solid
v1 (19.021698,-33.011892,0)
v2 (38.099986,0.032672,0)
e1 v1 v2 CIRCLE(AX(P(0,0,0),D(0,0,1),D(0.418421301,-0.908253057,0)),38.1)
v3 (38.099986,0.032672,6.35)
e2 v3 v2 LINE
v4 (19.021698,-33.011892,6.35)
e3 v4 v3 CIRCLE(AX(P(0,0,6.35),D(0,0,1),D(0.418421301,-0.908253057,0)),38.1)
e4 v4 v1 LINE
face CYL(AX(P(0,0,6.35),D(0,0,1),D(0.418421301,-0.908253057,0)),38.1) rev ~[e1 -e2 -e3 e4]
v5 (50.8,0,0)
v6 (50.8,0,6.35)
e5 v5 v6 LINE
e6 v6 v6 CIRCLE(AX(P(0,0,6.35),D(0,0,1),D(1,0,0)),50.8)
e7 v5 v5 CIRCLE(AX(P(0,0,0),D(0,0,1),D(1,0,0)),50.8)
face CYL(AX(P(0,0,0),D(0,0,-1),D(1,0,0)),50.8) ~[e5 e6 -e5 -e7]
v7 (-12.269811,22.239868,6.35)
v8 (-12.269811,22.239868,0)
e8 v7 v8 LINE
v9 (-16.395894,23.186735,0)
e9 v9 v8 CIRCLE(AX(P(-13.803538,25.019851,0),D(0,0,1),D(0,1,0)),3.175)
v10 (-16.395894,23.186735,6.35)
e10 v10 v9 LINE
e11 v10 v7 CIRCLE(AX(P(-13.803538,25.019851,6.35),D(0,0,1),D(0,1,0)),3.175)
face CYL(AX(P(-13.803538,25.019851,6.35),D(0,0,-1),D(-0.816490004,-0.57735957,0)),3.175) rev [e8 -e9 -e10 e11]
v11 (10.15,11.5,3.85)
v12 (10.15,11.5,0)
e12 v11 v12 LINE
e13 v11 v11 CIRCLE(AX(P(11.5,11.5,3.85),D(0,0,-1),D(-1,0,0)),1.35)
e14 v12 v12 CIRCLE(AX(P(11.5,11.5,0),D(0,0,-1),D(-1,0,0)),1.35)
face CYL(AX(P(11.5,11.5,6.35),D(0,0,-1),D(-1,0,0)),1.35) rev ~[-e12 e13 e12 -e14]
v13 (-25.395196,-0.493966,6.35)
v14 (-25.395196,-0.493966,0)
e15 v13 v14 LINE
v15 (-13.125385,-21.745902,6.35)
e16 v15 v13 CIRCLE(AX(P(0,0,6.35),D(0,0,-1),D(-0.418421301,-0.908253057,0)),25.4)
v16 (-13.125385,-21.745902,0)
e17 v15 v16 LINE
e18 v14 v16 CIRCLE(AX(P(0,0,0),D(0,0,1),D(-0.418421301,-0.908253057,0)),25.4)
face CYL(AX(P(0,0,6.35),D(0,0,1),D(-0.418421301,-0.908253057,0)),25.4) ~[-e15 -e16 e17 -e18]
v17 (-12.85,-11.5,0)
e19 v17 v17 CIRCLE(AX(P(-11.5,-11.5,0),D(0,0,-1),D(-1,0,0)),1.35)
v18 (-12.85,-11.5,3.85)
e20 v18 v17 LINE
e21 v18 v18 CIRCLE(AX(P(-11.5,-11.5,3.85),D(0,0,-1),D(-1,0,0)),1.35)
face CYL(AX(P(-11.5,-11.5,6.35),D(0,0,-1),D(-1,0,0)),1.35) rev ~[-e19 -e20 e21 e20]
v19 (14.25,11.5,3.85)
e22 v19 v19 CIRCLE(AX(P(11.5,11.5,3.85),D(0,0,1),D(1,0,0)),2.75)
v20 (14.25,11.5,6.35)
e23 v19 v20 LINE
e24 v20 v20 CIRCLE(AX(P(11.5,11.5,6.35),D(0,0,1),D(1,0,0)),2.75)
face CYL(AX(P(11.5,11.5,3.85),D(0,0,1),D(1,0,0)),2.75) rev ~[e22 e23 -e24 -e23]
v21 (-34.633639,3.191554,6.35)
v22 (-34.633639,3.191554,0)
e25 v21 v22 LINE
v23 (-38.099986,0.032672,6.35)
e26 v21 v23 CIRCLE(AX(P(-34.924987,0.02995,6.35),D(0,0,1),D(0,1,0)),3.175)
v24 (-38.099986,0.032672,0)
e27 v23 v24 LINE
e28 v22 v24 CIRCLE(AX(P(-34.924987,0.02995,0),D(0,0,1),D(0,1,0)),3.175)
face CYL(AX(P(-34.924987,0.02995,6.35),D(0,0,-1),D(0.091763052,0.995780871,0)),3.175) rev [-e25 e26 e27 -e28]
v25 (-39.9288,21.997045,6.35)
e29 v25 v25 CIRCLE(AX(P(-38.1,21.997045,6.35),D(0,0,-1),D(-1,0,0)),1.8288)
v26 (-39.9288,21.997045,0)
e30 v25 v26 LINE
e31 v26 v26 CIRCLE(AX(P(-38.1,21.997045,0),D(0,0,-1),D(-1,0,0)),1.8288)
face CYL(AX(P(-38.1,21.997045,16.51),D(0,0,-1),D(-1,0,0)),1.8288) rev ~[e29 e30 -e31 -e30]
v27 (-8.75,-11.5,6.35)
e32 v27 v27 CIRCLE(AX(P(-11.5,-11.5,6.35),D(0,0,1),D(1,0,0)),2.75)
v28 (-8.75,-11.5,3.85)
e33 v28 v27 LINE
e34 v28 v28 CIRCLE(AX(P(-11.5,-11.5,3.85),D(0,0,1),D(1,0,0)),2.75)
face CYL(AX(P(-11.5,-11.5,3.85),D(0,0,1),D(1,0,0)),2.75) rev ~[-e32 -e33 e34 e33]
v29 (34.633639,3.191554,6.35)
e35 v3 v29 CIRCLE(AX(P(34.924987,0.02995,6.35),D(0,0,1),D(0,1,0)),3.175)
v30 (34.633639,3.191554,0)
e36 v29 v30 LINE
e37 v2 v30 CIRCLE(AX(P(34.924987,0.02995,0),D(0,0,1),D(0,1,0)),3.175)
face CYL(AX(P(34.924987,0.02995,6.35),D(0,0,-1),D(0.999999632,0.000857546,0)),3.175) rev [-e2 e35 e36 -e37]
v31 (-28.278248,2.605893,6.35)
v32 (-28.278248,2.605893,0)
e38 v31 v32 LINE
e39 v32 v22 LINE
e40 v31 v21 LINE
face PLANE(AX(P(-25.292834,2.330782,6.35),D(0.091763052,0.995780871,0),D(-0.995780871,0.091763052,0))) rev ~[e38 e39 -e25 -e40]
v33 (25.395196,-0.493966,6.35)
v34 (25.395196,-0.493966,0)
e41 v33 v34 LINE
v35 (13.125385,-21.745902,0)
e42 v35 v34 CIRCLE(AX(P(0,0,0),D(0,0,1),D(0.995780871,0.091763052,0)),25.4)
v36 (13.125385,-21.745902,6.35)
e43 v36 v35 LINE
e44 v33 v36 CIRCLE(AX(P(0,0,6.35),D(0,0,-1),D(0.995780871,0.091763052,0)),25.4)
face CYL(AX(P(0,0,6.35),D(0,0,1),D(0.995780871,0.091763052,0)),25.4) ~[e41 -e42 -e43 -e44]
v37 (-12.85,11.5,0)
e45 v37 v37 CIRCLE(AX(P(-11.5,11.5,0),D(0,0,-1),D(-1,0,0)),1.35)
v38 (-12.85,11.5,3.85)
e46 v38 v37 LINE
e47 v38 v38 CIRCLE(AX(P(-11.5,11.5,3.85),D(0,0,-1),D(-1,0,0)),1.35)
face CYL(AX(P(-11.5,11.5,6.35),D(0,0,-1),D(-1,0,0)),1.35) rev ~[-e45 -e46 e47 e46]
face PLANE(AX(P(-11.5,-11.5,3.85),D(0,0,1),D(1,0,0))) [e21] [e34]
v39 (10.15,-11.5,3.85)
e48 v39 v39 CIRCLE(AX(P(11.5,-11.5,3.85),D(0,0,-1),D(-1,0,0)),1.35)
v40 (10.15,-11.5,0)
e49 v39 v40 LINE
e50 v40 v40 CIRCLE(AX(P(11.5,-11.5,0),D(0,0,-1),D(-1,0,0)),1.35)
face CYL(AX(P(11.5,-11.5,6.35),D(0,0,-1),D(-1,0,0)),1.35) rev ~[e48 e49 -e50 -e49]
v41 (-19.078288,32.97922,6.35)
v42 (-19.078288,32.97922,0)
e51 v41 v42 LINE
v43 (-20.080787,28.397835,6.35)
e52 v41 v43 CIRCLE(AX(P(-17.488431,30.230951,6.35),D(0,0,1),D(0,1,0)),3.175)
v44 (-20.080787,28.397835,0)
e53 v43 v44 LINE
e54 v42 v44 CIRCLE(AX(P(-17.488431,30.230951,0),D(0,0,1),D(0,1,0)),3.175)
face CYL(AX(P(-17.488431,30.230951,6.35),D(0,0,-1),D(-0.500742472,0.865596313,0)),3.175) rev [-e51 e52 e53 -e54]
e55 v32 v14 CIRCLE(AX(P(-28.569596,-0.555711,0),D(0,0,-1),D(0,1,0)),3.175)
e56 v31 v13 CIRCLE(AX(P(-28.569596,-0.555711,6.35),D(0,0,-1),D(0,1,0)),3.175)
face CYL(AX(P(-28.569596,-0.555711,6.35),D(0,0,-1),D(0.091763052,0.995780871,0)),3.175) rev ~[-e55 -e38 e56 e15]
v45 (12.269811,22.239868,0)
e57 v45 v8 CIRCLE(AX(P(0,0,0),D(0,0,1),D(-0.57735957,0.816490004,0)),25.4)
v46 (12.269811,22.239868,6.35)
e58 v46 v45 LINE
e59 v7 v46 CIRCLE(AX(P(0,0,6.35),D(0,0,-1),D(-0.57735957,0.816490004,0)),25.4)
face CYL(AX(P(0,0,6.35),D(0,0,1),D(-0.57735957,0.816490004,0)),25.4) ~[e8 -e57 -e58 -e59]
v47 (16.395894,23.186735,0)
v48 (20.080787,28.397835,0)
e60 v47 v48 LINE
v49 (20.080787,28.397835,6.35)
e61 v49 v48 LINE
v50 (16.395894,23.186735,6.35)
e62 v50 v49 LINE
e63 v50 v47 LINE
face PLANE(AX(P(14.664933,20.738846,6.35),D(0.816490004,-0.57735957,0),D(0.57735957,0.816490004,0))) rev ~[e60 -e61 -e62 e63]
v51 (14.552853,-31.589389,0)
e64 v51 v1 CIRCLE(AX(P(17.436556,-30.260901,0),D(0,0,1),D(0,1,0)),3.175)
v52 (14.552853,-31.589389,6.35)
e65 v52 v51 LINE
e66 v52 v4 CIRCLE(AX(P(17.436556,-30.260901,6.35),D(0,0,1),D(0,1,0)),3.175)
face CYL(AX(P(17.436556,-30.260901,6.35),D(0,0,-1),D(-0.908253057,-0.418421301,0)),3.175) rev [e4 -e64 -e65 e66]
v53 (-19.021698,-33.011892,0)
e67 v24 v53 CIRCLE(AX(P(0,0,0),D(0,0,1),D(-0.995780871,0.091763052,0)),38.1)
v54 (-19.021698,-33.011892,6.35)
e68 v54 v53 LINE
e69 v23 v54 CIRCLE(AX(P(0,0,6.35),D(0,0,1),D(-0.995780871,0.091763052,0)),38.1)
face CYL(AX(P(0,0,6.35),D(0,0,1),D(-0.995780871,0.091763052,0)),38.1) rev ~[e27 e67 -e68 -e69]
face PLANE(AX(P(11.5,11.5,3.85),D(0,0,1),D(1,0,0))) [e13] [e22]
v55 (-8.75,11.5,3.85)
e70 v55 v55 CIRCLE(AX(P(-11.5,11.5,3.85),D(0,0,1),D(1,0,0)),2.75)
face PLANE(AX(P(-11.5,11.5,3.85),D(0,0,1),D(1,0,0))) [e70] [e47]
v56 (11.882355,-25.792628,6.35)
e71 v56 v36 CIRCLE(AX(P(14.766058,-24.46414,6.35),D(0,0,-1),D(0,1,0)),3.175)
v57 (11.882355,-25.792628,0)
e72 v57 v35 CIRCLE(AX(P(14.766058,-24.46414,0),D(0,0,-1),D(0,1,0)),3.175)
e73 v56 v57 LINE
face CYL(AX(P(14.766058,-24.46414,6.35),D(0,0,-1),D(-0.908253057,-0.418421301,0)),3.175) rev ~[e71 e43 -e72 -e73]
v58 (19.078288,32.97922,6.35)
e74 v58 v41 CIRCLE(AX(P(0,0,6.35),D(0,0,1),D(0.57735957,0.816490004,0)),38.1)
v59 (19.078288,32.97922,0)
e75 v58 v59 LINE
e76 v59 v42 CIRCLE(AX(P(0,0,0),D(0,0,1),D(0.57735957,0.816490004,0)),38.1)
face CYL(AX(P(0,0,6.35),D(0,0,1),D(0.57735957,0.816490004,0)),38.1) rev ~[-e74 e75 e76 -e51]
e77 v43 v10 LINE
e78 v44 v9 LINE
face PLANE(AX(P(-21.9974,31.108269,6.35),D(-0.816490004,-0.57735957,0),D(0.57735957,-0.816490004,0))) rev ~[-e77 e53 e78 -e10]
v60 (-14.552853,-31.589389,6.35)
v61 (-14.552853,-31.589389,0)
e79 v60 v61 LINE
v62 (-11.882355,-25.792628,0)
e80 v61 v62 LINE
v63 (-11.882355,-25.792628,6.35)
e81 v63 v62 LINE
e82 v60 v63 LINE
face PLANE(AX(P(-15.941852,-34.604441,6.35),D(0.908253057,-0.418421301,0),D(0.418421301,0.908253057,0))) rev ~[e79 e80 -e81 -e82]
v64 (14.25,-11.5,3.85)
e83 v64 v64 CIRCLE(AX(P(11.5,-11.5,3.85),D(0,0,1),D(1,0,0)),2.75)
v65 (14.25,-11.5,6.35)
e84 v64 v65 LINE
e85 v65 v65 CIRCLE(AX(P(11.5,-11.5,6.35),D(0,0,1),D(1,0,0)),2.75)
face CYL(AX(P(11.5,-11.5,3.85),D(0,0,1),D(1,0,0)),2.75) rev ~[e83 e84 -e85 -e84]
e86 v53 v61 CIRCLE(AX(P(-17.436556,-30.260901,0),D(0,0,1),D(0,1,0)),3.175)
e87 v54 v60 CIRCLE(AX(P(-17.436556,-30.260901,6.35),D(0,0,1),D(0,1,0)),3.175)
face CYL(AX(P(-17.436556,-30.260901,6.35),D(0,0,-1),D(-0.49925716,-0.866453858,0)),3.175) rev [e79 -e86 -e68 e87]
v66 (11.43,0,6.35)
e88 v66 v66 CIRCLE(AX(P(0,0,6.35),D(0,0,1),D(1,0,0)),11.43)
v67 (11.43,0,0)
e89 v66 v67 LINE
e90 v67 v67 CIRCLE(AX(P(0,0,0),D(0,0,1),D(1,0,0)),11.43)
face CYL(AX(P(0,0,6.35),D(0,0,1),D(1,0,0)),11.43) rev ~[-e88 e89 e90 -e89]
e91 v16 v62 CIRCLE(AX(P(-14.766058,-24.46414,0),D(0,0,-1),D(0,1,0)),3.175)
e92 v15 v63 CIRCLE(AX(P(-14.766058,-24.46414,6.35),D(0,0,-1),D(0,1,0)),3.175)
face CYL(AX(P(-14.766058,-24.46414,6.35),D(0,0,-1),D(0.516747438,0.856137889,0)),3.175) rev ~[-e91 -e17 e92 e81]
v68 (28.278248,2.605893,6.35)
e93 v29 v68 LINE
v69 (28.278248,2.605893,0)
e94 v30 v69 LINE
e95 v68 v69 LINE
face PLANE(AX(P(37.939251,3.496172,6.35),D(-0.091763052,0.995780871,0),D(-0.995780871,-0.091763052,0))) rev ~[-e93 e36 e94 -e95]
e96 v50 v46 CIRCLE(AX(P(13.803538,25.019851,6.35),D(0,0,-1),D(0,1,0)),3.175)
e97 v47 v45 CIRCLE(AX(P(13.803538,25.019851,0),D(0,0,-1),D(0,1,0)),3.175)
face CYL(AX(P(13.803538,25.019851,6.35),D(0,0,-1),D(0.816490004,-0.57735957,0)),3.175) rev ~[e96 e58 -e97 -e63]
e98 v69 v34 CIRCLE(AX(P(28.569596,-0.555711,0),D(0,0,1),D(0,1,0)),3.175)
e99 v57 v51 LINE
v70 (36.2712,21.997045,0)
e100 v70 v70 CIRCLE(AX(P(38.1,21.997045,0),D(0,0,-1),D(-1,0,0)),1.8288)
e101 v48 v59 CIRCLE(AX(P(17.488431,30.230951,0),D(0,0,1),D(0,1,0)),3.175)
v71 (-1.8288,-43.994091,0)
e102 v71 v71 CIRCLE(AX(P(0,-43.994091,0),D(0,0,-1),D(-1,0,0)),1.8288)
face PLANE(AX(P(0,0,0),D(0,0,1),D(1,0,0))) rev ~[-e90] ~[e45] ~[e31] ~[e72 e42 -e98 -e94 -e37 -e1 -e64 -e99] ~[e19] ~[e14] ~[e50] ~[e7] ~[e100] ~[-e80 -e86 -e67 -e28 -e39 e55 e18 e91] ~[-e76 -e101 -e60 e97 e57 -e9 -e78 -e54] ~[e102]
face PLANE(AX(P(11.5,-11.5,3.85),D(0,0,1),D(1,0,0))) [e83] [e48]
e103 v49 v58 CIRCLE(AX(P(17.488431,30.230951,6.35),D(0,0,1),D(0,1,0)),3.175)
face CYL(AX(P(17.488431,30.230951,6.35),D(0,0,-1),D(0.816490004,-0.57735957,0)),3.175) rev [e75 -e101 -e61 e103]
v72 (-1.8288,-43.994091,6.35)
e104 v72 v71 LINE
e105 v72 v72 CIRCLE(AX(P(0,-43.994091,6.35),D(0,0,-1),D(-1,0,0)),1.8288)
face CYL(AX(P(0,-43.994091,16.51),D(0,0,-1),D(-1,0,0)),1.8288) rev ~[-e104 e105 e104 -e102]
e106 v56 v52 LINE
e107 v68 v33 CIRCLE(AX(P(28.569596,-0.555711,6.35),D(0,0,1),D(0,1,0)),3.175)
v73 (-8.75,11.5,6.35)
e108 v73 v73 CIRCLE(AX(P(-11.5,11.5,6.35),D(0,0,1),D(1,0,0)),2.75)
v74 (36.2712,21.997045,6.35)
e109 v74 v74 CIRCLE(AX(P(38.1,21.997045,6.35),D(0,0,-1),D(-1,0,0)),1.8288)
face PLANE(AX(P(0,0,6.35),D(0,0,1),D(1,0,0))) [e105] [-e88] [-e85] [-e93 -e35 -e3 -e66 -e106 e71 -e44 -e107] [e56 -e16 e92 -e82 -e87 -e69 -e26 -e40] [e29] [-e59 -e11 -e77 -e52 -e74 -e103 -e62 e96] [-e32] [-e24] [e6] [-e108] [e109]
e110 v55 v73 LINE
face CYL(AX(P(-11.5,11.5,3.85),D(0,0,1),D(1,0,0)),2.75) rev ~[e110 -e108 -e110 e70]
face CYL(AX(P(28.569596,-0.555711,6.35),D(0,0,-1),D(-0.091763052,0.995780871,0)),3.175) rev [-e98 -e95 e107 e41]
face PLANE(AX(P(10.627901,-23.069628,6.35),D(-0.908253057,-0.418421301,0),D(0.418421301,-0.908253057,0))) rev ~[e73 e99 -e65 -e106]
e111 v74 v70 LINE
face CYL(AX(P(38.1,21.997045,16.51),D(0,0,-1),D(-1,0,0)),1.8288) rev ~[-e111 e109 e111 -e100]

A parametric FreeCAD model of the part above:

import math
import FreeCAD as App
import Part
import Sketcher

V = App.Vector
Q = App.Units.Quantity


def edges_at(feature, points):
    """Names of the edges that pass closest to the given points."""
    edges = feature.Shape.Edges
    near = lambda p: min(range(len(edges)), key=lambda i: edges[i].distToShape(Part.Vertex(*p))[0])
    return sorted({f"Edge{near(p) + 1}" for p in points})

doc = App.newDocument("Part")
body = doc.addObject("PartDesign::Body", "Body")

# Sketch on XY plane
sketch1 = body.newObject("Sketcher::SketchObject", "Sketch")
sketch1.AttachmentSupport = (doc.getObject("XY_Plane"), [""])
sketch1.MapMode = "FlatFace"
sketch1.addGeometry(Part.Circle(V(0, 0, 0), V(0, 0, 1), 51), False)
sketch1.addConstraint([
    Sketcher.Constraint("Coincident", 0, 3, -1, 1),
    Sketcher.Constraint("Diameter", 0, Q("4 in")),
])
pad1 = body.newObject("PartDesign::Pad", "Pad")
pad1.Profile = sketch1
pad1.Length = Q("0.25 in")

# Sketch on XY plane
sketch2 = body.newObject("Sketcher::SketchObject", "Sketch001")
sketch2.AttachmentSupport = (doc.getObject("XY_Plane"), [""])
sketch2.MapMode = "FlatFace"
sketch2.AttachmentOffset = App.Placement(V(0, 0, 0.25 * 25.4), App.Rotation())
sketch2.addGeometry(Part.Circle(V(0, 0, 0), V(0, 0, 1), 11), False)
sketch2.addConstraint([
    Sketcher.Constraint("Coincident", 0, 3, -1, 1),
    Sketcher.Constraint("Diameter", 0, Q("0.9 in")),
])
pocket1 = body.newObject("PartDesign::Pocket", "Pocket")
pocket1.Profile = sketch2
pocket1.Type = "ThroughAll"

# Sketch on XY plane
sketch3 = body.newObject("Sketcher::SketchObject", "Sketch002")
sketch3.AttachmentSupport = (doc.getObject("XY_Plane"), [""])
sketch3.MapMode = "FlatFace"
sketch3.AttachmentOffset = App.Placement(V(0, 0, 0.25 * 25.4), App.Rotation())
sketch3.addGeometry([
    Part.Circle(V(0, 0, 0), V(0, 0, 1), 1.4),  # 0
    Part.Circle(V(11.5, 11.5, 0), V(0, 0, 1), 1.4),  # 1
    Part.Circle(V(-11.5, -11.5, 0), V(0, 0, 1), 1.4),  # 2
    Part.Circle(V(-11.5, 11.5, 0), V(0, 0, 1), 1.4),  # 3
    Part.Circle(V(11.5, -11.5, 0), V(0, 0, 1), 1.4),  # 4
], False)
sketch3.addConstraint([
    Sketcher.Constraint("Coincident", 0, 3, -1, 1),
    Sketcher.Constraint("Equal", 0, 1),
    Sketcher.Constraint("Equal", 1, 2),
    Sketcher.Constraint("Equal", 2, 3),
    Sketcher.Constraint("Equal", 3, 4),
    Sketcher.Constraint("Symmetric", 1, 3, 2, 3, -1, 1),
    Sketcher.Constraint("Symmetric", 3, 3, 4, 3, -1, 1),
    Sketcher.Constraint("Symmetric", 1, 3, 3, 3, -2),
    Sketcher.Constraint("Diameter", 0, 2.7),
    Sketcher.Constraint("DistanceX", -1, 1, 1, 3, 11.5),
    Sketcher.Constraint("DistanceY", -1, 1, 1, 3, 11.5),
])
doc.recompute()
hole = body.newObject("PartDesign::Hole", "Hole")
hole.Profile = sketch3
hole.ThreadType = "None"
hole.Diameter = 2.7
hole.DepthType = "Dimension"
hole.Depth = Q("0.4 in")
hole.DrillPoint = "Angled"
hole.DrillPointAngle = 118
hole.HoleCutType = "Counterbore"
hole.HoleCutDiameter = 5.5
hole.HoleCutDepth = 2.5

# Sketch on XY plane
sketch4 = body.newObject("Sketcher::SketchObject", "Sketch003")
sketch4.AttachmentSupport = (doc.getObject("XY_Plane"), [""])
sketch4.MapMode = "FlatFace"
sketch4.AttachmentOffset = App.Placement(V(0, 0, 0.25 * 25.4), App.Rotation())
sketch4.addGeometry([
    Part.Circle(V(-38.1, 22, 0), V(0, 0, 1), 1.8),
    Part.Circle(V(0, -44, 0), V(0, 0, 1), 1.8),
    Part.Circle(V(38.1, 22, 0), V(0, 0, 1), 1.8),
], False)
sketch4.addConstraint([
    Sketcher.Constraint("Equal", 0, 1),
    Sketcher.Constraint("Equal", 1, 2),
    Sketcher.Constraint("Symmetric", 0, 3, 2, 3, -2),
    Sketcher.Constraint("PointOnObject", 1, 3, -2),
    Sketcher.Constraint("Diameter", 0, Q("0.144 in")),
    Sketcher.Constraint("DistanceX", 0, 3, 2, 3, Q("3 in")),
    Sketcher.Constraint("DistanceY", 1, 3, -1, 1, 43.994091),
    Sketcher.Constraint("DistanceY", -1, 1, 0, 3, 21.997045),
])
doc.recompute()
hole2 = body.newObject("PartDesign::Hole", "Hole001")
hole2.Profile = sketch4
hole2.ThreadType = "None"
hole2.Diameter = Q("0.144 in")
hole2.DepthType = "Dimension"
hole2.Depth = Q("0.4 in")
hole2.DrillPoint = "Angled"
hole2.DrillPointAngle = 118

# Sketch on XY plane
sketch5 = body.newObject("Sketcher::SketchObject", "Sketch004")
sketch5.AttachmentSupport = (doc.getObject("XY_Plane"), [""])
sketch5.MapMode = "FlatFace"
sketch5.AttachmentOffset = App.Placement(V(0, 0, 0.25 * 25.4), App.Rotation())
sketch5.addGeometry([
    Part.LineSegment(V(15, 21, 0), V(22, 31, 0)),
    Part.ArcOfCircle(Part.Circle(V(0, 0, 0), V(0, 0, 1), 38), math.radians(55), math.radians(125)),
    Part.LineSegment(V(-22, 31, 0), V(-15, 21, 0)),
    Part.ArcOfCircle(Part.Circle(V(0, 0, 0), V(0, 0, 1), 25), math.radians(55), math.radians(125)),
], False)
sketch5.addConstraint([
    Sketcher.Constraint("Coincident", 0, 2, 1, 1),
    Sketcher.Constraint("Coincident", 1, 2, 2, 1),
    Sketcher.Constraint("Coincident", 2, 2, 3, 2),
    Sketcher.Constraint("Coincident", 3, 1, 0, 1),
    Sketcher.Constraint("Coincident", 1, 3, -1, 1),
    Sketcher.Constraint("Coincident", 3, 3, -1, 1),
    Sketcher.Constraint("Horizontal", 0, 2, 1, 2),
    Sketcher.Constraint("Horizontal", 2, 2, 3, 1),
    Sketcher.Constraint("Radius", 3, Q("1 in")),
    Sketcher.Constraint("Radius", 1, Q("1.5 in")),
    Sketcher.Constraint("DistanceX", -1, 1, 0, 2, 21.9974),
    Sketcher.Constraint("DistanceX", 2, 2, -1, 1, 14.664933),
])
pocket2 = body.newObject("PartDesign::Pocket", "Pocket001")
pocket2.Profile = sketch5
pocket2.Type = "ThroughAll"
doc.recompute()

fillet = body.newObject("PartDesign::Fillet", "Fillet")
fillet.Base = (pocket2, edges_at(pocket2, [
    (-21.997, 31.108, 3.175),
    (21.997, 31.108, 3.175),
    (14.665, 20.739, 3.175),
    (-14.665, 20.739, 3.175),
]))
fillet.Radius = Q("0.125 in")
doc.recompute()

polarpattern = body.newObject("PartDesign::PolarPattern", "PolarPattern")
polarpattern.Originals = [pocket2]
polarpattern.Axis = (doc.getObject("Z_Axis"), [""])
polarpattern.Angle = 360
polarpattern.Occurrences = 3
body.Tip = polarpattern
doc.recompute()

fillet2 = body.newObject("PartDesign::Fillet", "Fillet001")
fillet2.Base = (polarpattern, edges_at(polarpattern, [
    (-15.942, -34.604, 3.175),
    (-37.939, 3.496, 3.175),
    (-25.293, 2.331, 3.175),
    (-10.628, -23.07, 3.175),
    (37.939, 3.496, 3.175),
    (15.942, -34.604, 3.175),
    (10.628, -23.07, 3.175),
    (25.293, 2.331, 3.175),
]))
fillet2.Radius = Q("0.125 in")

doc.recompute()
